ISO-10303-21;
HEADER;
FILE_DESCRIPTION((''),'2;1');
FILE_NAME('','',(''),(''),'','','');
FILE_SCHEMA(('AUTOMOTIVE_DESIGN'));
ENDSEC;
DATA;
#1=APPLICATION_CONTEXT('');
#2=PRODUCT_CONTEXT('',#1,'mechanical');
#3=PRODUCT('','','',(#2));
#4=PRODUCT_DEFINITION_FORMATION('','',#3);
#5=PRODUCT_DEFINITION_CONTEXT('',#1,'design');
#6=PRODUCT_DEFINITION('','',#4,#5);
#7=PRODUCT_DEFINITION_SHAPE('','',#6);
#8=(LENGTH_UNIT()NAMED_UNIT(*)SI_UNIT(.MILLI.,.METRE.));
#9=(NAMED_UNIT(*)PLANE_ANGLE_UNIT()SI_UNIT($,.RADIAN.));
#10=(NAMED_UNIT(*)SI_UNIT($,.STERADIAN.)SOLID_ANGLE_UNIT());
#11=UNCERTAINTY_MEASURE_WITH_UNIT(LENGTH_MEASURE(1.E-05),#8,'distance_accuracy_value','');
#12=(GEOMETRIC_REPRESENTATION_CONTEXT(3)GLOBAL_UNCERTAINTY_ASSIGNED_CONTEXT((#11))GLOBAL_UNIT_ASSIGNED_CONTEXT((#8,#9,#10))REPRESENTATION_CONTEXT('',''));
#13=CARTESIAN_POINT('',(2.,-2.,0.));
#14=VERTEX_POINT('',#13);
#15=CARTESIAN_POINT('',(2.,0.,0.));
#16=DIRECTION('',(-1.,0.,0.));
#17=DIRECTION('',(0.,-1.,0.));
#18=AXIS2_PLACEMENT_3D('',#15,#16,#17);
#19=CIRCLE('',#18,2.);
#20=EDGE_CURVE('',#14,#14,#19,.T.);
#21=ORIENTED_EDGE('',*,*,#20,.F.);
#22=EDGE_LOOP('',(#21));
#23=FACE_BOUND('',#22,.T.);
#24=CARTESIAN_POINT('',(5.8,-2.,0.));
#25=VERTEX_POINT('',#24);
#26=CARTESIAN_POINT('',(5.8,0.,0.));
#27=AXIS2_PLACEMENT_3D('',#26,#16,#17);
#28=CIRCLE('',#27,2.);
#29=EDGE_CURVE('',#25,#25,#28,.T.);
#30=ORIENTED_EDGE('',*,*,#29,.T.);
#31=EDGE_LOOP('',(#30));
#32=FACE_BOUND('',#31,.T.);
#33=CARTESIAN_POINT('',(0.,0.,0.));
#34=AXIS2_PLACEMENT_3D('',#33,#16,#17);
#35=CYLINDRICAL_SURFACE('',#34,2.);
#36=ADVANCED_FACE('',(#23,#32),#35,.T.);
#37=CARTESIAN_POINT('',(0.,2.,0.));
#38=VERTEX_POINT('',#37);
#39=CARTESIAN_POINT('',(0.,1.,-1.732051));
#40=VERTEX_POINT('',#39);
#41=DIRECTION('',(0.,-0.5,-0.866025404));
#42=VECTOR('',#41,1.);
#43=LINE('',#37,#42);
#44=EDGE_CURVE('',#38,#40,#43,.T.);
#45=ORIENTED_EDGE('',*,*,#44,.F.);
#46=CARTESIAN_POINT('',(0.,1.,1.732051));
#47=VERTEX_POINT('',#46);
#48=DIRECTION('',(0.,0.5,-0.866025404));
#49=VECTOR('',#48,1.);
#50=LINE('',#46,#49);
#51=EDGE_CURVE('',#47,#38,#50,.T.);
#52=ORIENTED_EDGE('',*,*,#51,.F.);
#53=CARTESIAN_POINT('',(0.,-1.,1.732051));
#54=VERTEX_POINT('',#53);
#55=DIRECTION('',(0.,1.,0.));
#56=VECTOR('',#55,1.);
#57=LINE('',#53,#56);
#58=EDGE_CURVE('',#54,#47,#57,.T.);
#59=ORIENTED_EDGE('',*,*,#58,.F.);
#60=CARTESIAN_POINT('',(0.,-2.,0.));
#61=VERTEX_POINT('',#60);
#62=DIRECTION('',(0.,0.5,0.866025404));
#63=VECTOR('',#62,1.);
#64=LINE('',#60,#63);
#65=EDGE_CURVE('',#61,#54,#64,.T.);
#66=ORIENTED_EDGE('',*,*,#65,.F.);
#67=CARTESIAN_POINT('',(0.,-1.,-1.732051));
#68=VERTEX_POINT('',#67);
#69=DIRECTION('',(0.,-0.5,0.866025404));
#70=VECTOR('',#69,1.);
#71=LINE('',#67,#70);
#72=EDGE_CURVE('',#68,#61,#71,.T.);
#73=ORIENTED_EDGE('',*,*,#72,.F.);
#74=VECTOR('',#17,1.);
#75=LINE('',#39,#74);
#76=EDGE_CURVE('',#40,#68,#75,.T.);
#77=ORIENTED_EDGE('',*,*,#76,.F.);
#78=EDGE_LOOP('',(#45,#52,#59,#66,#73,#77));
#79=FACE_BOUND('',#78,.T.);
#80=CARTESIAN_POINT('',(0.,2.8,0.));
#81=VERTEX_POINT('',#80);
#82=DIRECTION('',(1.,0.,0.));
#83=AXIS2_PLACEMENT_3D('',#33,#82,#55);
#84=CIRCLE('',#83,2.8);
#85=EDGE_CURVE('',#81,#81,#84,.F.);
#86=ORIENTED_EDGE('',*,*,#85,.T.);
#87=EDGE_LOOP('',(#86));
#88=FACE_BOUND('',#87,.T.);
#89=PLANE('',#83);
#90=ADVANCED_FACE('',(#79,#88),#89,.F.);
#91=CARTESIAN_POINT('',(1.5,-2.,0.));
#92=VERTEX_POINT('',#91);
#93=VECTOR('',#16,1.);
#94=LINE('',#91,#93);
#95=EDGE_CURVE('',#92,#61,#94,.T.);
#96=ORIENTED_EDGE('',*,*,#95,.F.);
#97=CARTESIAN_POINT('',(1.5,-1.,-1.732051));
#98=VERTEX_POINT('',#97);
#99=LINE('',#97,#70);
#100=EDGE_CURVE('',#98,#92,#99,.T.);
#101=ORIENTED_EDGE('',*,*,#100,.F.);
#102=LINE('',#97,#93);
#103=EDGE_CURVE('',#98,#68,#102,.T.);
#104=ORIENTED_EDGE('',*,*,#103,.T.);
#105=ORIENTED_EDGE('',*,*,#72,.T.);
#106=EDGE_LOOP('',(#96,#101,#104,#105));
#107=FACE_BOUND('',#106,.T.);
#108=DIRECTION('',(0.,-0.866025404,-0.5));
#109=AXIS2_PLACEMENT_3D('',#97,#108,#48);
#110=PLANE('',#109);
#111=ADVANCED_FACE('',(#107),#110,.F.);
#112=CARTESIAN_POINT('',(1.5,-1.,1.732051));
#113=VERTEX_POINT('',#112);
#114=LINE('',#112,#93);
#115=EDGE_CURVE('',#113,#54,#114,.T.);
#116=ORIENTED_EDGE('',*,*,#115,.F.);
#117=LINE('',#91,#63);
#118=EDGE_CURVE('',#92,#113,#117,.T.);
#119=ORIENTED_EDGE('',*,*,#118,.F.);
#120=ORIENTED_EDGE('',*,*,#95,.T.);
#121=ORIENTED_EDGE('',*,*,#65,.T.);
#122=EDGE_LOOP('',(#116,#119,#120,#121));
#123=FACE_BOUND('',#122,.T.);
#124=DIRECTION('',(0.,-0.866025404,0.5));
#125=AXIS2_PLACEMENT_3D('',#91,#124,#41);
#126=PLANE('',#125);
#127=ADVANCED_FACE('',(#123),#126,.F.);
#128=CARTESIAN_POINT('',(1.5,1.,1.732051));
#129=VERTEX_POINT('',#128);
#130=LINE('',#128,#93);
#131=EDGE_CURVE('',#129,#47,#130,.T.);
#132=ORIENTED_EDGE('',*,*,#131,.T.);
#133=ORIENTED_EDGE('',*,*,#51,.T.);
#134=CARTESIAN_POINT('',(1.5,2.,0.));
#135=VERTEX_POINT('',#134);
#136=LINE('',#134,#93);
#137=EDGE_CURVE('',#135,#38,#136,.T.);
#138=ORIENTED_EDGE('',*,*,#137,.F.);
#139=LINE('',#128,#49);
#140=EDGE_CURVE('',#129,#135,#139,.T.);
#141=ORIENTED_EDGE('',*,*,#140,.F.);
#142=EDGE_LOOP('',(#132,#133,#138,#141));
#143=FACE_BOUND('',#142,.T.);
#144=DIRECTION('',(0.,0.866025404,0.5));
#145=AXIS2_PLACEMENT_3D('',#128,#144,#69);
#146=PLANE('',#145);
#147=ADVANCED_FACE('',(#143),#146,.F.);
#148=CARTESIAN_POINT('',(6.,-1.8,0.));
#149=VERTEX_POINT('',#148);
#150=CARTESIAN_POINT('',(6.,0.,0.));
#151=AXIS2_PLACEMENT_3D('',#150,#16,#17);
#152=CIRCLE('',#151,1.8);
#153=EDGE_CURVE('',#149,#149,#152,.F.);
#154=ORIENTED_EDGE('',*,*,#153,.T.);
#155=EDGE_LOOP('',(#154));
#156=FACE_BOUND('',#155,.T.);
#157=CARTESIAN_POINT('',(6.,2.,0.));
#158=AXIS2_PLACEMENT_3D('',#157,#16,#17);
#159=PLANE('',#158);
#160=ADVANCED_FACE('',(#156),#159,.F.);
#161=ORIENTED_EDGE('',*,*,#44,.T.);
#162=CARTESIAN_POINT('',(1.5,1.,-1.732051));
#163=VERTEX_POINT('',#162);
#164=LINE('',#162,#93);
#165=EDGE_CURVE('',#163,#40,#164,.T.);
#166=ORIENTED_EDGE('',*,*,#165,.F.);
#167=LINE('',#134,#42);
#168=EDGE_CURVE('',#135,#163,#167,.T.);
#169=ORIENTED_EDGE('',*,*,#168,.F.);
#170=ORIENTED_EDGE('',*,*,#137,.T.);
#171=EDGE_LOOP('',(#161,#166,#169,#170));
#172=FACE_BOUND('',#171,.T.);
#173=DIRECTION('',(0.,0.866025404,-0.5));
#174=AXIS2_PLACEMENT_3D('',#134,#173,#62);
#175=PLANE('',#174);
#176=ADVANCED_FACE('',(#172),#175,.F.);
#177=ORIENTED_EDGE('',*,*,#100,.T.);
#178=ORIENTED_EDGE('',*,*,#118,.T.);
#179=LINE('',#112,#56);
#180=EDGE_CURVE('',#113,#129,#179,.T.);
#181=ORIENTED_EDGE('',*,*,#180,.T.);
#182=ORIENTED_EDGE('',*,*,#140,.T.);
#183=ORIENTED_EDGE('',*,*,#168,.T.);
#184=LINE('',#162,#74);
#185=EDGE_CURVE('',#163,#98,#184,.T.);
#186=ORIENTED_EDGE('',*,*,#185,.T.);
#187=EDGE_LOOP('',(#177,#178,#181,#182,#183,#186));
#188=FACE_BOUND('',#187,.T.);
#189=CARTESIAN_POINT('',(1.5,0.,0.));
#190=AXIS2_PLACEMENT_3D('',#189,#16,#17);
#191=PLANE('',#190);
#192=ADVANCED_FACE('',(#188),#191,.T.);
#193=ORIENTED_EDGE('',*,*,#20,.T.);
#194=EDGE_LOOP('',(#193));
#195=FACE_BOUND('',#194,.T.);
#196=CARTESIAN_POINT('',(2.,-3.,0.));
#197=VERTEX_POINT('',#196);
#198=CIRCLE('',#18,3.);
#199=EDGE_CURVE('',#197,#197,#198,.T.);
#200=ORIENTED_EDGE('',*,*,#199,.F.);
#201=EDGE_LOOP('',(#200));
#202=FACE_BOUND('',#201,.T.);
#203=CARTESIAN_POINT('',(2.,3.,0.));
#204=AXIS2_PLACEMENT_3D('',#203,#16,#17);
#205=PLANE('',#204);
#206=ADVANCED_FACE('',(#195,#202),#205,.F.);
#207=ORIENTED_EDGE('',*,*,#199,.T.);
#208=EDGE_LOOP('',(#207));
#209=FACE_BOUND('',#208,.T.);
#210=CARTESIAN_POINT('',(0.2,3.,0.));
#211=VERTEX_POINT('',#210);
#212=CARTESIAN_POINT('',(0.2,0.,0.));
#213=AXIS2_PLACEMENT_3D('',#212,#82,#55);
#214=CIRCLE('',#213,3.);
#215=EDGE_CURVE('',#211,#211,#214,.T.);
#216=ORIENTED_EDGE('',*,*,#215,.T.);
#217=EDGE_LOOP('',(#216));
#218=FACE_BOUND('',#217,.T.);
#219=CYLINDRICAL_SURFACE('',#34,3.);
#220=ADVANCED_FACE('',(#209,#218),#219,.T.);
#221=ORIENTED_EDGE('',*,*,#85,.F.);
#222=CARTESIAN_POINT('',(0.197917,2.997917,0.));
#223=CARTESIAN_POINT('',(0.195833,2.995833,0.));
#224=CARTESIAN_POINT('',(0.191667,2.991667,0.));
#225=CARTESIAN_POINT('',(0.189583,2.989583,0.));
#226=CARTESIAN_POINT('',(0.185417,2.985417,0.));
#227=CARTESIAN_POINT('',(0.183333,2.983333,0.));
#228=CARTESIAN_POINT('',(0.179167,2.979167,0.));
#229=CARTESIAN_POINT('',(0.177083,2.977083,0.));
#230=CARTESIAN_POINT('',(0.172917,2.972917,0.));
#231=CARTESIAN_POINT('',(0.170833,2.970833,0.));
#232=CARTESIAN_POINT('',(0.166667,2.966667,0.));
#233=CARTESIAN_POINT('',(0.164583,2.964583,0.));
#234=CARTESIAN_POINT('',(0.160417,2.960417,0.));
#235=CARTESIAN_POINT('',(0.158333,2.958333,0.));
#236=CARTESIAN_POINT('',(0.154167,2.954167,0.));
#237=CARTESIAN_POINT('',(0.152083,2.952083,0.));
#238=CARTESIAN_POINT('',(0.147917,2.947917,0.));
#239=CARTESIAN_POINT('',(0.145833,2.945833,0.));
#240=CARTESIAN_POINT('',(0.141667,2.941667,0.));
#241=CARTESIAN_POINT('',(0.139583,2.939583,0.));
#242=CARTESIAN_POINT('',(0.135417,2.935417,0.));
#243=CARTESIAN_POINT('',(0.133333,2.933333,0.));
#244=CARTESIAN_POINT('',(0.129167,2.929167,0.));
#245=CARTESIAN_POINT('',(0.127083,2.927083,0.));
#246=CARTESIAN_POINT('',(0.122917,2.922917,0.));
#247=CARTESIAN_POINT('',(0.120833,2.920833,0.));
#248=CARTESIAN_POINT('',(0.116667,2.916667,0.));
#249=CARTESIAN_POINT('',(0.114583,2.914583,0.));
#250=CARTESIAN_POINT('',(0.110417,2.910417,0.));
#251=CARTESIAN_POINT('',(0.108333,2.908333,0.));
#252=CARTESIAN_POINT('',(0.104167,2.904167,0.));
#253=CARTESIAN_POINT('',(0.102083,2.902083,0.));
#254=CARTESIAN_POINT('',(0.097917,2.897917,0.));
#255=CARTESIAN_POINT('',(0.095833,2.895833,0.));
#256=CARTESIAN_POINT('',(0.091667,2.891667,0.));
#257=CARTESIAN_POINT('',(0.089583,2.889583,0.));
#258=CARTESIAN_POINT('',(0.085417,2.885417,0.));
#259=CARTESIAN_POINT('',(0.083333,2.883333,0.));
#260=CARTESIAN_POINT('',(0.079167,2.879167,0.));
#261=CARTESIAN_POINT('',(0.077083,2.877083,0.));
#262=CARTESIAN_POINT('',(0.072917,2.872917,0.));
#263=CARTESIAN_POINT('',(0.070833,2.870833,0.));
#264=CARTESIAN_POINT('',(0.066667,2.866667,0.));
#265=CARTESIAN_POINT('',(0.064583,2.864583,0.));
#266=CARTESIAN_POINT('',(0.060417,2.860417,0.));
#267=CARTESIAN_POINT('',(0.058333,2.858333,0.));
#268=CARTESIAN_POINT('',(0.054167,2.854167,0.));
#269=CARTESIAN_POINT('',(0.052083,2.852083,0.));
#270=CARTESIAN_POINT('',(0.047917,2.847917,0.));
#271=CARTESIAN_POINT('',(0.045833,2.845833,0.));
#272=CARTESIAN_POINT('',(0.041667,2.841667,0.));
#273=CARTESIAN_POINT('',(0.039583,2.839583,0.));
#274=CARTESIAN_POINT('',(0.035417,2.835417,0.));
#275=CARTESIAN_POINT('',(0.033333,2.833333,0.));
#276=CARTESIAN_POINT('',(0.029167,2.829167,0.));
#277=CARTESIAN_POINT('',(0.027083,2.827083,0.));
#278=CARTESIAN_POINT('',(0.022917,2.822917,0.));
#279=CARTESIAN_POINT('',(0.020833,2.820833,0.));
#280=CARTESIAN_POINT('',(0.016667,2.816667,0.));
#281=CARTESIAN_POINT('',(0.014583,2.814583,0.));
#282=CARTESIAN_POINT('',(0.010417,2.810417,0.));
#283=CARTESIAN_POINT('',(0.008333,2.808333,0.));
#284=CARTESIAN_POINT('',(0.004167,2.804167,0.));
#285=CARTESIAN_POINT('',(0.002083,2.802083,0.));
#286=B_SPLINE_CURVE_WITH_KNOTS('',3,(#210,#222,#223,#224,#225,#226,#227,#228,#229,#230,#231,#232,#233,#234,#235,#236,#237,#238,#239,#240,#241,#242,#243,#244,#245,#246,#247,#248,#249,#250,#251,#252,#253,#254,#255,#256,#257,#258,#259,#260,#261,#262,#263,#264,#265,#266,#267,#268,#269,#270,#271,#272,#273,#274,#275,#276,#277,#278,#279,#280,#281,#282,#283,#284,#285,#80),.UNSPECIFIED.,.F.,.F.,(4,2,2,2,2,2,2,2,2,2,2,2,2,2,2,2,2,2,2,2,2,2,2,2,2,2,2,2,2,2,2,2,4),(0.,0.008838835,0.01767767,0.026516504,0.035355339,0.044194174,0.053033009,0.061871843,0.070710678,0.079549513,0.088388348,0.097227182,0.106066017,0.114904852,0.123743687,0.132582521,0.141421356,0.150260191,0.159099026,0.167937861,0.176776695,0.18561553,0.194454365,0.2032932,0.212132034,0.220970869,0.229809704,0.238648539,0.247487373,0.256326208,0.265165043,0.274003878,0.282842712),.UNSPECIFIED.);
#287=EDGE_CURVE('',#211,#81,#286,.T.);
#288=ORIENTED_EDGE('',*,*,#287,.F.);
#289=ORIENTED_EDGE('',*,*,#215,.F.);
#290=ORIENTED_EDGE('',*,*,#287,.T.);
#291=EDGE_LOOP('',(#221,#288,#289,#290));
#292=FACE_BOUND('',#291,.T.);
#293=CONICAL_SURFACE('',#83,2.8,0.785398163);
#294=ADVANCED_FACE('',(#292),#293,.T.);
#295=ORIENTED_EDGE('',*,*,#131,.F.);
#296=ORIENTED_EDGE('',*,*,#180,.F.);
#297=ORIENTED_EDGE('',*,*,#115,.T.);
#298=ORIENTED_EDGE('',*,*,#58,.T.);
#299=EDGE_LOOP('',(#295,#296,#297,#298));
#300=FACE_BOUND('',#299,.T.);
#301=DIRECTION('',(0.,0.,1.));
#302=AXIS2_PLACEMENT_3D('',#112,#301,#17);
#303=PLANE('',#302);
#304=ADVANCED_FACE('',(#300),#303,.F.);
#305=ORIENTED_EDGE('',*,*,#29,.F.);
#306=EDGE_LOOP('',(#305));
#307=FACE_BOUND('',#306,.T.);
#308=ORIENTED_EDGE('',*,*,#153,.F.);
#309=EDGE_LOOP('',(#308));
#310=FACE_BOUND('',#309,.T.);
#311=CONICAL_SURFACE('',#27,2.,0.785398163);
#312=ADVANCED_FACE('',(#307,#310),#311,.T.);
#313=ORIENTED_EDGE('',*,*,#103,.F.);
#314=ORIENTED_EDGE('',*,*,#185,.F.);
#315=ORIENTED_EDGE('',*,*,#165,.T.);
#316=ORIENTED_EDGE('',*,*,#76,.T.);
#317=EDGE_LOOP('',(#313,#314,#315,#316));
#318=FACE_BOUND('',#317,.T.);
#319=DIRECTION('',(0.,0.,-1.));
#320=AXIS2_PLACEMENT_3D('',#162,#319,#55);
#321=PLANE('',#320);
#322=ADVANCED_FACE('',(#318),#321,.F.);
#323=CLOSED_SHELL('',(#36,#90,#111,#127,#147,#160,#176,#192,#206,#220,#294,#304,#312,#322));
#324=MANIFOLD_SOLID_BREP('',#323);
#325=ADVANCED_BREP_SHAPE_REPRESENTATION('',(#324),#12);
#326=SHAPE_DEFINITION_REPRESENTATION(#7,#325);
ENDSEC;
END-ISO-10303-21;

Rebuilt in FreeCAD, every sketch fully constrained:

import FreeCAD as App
import Part
import Sketcher

V = App.Vector
Q = App.Units.Quantity


def edges_at(feature, points):
    """Names of the edges that pass closest to the given points."""
    edges = feature.Shape.Edges
    near = lambda p: min(range(len(edges)), key=lambda i: edges[i].distToShape(Part.Vertex(*p))[0])
    return sorted({f"Edge{near(p) + 1}" for p in points})


def add_polygon(sketch, points):
    """Adds a closed chain of lines whose ends are joined by coincident constraints."""
    first, n = sketch.GeometryCount, len(points)
    for a, b in zip(points, points[1:] + points[:1]):
        sketch.addGeometry(Part.LineSegment(App.Vector(*a, 0), App.Vector(*b, 0)), False)
    for i in range(n):
        sketch.addConstraint(Sketcher.Constraint("Coincident", first + i, 2, first + (i + 1) % n, 1))

doc = App.newDocument("Part")
params = doc.addObject("Spreadsheet::Sheet", "Params")
for row, (alias, value) in enumerate([
    ("sketch1_width", "6 mm"),
    ("sketch1_width2", "4 mm"),
    ("sketch1_height", "3 mm"),
    ("revolution_angle", "360 deg"),
    ("sketch2_width", "2 mm"),
    ("sketch2_length", "2 mm"),
    ("pocket1_length", "1.5 mm"),
    ("chamfer_size", "0.2 mm"),
], start=1):
    params.set(f"A{row}", alias)
    params.set(f"B{row}", "=" + value)
    params.setAlias(f"B{row}", alias)

body = doc.addObject("PartDesign::Body", "Body")

# Sketch on XY plane
sketch1 = body.newObject("Sketcher::SketchObject", "Sketch")
sketch1.AttachmentSupport = (doc.getObject("XY_Plane"), [""])
sketch1.MapMode = "FlatFace"
add_polygon(sketch1, [(0, 3), (0, 0), (6, 0), (6, 2), (2, 2), (2, 3)])  # lines 0-5
sketch1.addConstraint([
    Sketcher.Constraint("Vertical", 0),
    Sketcher.Constraint("Horizontal", 1),
    Sketcher.Constraint("Vertical", 2),
    Sketcher.Constraint("Horizontal", 3),
    Sketcher.Constraint("Vertical", 4),
    Sketcher.Constraint("Horizontal", 5),
    Sketcher.Constraint("Coincident", 0, 2, -1, 1),
    Sketcher.Constraint("Equal", 5, 2),
    Sketcher.Constraint("DistanceX", 1, 1, 1, 2, 6.0),
    Sketcher.Constraint("DistanceX", 3, 2, 3, 1, 4.0),
    Sketcher.Constraint("DistanceY", 0, 2, 0, 1, 3.0),
])
sketch1.setExpression("Constraints[14]", "Params.sketch1_width")
sketch1.setExpression("Constraints[15]", "Params.sketch1_width2")
sketch1.setExpression("Constraints[16]", "Params.sketch1_height")
revolution = body.newObject("PartDesign::Revolution", "Revolution")
revolution.Profile = sketch1
revolution.ReferenceAxis = (sketch1, ["H_Axis"])
revolution.setExpression("Angle", "Params.revolution_angle")

# Sketch on YZ plane
sketch2 = body.newObject("Sketcher::SketchObject", "Sketch001")
sketch2.AttachmentSupport = (doc.getObject("YZ_Plane"), [""])
sketch2.MapMode = "FlatFace"
add_polygon(sketch2, [(2, 0), (1, -1.732051), (-1, -1.732051), (-2, 0), (-1, 1.732051), (1, 1.732051)])  # lines 0-5
sketch2.addConstraint([
    Sketcher.Constraint("Horizontal", 1),
    Sketcher.Constraint("Horizontal", 4),
    Sketcher.Constraint("Symmetric", 0, 2, 3, 2, -1, 1),
    Sketcher.Constraint("Symmetric", 2, 2, 5, 2, -1, 1),
    Sketcher.Constraint("PointOnObject", 2, 2, -1),
    Sketcher.Constraint("Parallel", 2, 5),
    Sketcher.Constraint("Vertical", 1, 2, 3, 2),
    Sketcher.Constraint("DistanceX", 1, 2, 1, 1, 2.0),
    Sketcher.Constraint("Angle", 0, Q("-120 deg")),
    Sketcher.Constraint("Distance", 0, 2.0),
])
sketch2.setExpression("Constraints[13]", "Params.sketch2_width")
sketch2.setExpression("Constraints[15]", "Params.sketch2_length")
pocket1 = body.newObject("PartDesign::Pocket", "Pocket")
pocket1.Profile = sketch2
pocket1.setExpression("Length", "Params.pocket1_length")
pocket1.Reversed = True
doc.recompute()

chamfer = body.newObject("PartDesign::Chamfer", "Chamfer")
chamfer.Base = (pocket1, edges_at(pocket1, [(6, 2, 0), (0, 3, 0)]))
chamfer.setExpression("Size", "Params.chamfer_size")

doc.recompute()
